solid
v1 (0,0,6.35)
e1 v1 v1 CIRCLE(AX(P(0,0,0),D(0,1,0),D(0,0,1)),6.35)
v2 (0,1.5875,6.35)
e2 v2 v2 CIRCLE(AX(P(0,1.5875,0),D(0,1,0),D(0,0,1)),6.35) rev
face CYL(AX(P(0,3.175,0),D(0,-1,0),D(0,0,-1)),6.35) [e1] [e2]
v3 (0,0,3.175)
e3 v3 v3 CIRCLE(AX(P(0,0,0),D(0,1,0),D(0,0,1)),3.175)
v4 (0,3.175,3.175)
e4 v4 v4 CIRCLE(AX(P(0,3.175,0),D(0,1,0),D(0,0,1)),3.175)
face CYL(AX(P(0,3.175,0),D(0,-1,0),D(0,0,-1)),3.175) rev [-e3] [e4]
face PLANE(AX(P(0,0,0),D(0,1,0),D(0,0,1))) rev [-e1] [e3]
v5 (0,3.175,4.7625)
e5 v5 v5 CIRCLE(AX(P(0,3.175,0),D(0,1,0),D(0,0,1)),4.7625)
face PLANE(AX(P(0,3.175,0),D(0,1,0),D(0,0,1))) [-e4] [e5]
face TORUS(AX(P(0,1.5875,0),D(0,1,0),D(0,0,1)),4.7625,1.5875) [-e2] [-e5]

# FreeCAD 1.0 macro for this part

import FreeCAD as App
import Part
import Sketcher
from FreeCAD import Vector
Q = App.Units.Quantity


def edges_at(feature, points):
    """Names of the edges that pass closest to the given points."""
    edges = feature.Shape.Edges
    near = lambda p: min(range(len(edges)), key=lambda i: edges[i].distToShape(Part.Vertex(*p))[0])
    return sorted({f"Edge{near(p) + 1}" for p in points})

doc = App.newDocument("Part")
body = doc.addObject("PartDesign::Body", "Body")

# Sketch on XZ plane
sketch1 = doc.addObject("Sketcher::SketchObject", "Sketch")
body.addObject(sketch1)
sketch1.AttachmentSupport = (doc.XZ_Plane, [""])
sketch1.MapMode = "FlatFace"
sketch1.addGeometry([
    Part.Circle(Vector(0, 0, 0), Vector(0, 0, 1), 6.3),
    Part.Circle(Vector(0, 0, 0), Vector(0, 0, 1), 3.2),
], False)
sketch1.addConstraint([
    Sketcher.Constraint("Coincident", 0, 3, -1, 1),
    Sketcher.Constraint("Coincident", 1, 3, -1, 1),
    Sketcher.Constraint("Diameter", 0, Q("0.5 in")),
    Sketcher.Constraint("Diameter", 1, Q("0.25 in")),
])
pad1 = doc.addObject("PartDesign::Pad", "Pad")
body.addObject(pad1)
pad1.Profile = sketch1
pad1.Length = Q("0.125 in")
pad1.Reversed = True
doc.recompute()

fillet = doc.addObject("PartDesign::Fillet", "Fillet")
body.addObject(fillet)
fillet.Base = (pad1, edges_at(pad1, [(0, 3.175, -6.35)]))
fillet.Radius = Q("0.0625 in")

doc.recompute()
